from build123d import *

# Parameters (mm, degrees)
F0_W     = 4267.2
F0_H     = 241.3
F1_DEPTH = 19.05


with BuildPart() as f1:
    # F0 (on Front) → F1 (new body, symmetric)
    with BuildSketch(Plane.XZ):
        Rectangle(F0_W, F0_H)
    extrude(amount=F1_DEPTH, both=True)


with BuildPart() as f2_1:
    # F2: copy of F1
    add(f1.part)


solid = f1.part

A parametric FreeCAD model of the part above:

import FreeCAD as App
import Part
import Sketcher

V = App.Vector
Q = App.Units.Quantity


def add_polygon(sketch, points):
    """Adds a closed chain of lines whose ends are joined by coincident constraints."""
    first, n = sketch.GeometryCount, len(points)
    for a, b in zip(points, points[1:] + points[:1]):
        sketch.addGeometry(Part.LineSegment(App.Vector(*a, 0), App.Vector(*b, 0)), False)
    for i in range(n):
        sketch.addConstraint(Sketcher.Constraint("Coincident", first + i, 2, first + (i + 1) % n, 1))

doc = App.newDocument("Part")
body = doc.addObject("PartDesign::Body", "Body")

sketch1 = body.newObject("Sketcher::SketchObject", "Sketch")
sketch1.AttachmentSupport = (doc.getObject("XZ_Plane"), [""])
sketch1.MapMode = "FlatFace"
add_polygon(sketch1, [(-2134, 121), (-2134, -121), (2134, -121), (2134, 121)])
sketch1.addConstraint(Sketcher.Constraint("Vertical", 0))
sketch1.addConstraint(Sketcher.Constraint("Horizontal", 1))
sketch1.addConstraint(Sketcher.Constraint("Vertical", 2))
sketch1.addConstraint(Sketcher.Constraint("Horizontal", 3))
sketch1.addConstraint(Sketcher.Constraint("Symmetric", 0, 2, 2, 2, -1, 1))
sketch1.addConstraint(Sketcher.Constraint("DistanceX", 1, 1, 1, 2, Q("168 in")))
sketch1.addConstraint(Sketcher.Constraint("DistanceY", 0, 2, 0, 1, Q("9.5 in")))
pad1 = body.newObject("PartDesign::Pad", "Pad")
pad1.Profile = sketch1
pad1.Length = Q("1.5 in")
pad1.Midplane = True
body2 = doc.addObject("PartDesign::Body", "Body001")
doc.recompute()

body2.BaseFeature = body
doc.recompute()
body.Visibility = False

doc.recompute()
